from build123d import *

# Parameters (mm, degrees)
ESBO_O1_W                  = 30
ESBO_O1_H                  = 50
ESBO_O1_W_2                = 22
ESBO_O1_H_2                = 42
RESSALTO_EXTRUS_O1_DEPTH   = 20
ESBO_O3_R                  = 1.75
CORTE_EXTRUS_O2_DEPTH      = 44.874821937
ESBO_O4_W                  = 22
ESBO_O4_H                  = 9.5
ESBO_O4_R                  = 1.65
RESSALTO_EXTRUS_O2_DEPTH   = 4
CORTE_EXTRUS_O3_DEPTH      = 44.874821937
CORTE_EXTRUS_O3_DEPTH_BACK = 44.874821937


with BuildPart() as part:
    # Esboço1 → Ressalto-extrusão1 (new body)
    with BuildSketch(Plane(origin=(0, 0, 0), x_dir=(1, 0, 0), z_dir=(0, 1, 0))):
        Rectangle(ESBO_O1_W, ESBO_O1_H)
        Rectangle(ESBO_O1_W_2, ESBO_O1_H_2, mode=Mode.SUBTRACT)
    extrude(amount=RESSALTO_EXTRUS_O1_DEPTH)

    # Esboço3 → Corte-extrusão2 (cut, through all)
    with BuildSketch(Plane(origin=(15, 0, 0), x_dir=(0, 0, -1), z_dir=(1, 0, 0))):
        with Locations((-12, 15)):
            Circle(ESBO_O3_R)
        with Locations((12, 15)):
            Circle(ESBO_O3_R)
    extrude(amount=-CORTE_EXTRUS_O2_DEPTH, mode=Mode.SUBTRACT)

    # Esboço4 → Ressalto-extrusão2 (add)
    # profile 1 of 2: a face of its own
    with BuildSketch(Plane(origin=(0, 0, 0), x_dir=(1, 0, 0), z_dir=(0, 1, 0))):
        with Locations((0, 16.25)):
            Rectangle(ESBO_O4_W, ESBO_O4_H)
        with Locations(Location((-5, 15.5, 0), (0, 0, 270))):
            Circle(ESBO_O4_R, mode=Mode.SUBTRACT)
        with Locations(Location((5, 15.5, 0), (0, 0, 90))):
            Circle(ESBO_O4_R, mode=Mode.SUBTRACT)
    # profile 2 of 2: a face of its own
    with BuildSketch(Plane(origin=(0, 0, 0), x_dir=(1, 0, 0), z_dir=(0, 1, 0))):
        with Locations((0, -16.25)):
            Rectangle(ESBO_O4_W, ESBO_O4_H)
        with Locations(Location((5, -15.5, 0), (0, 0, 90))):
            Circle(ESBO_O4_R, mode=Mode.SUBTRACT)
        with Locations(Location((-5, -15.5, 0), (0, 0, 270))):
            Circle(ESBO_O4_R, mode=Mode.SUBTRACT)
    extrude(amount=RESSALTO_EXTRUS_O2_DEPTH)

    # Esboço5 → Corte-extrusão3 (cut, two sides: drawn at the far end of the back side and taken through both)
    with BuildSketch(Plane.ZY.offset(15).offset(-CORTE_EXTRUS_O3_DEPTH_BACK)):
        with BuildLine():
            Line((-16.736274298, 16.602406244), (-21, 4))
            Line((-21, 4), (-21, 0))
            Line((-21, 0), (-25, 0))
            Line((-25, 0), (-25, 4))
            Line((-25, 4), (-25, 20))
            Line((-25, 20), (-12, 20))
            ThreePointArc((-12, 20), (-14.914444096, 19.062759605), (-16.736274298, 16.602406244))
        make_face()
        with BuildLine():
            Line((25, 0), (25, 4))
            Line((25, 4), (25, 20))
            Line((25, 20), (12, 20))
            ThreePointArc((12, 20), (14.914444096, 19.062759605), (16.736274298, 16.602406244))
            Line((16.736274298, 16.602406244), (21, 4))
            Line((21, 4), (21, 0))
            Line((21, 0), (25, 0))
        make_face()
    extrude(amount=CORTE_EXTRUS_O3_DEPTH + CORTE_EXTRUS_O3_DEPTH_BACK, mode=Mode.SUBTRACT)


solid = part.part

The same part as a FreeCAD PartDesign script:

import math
import FreeCAD as App
import Part
import Sketcher
from FreeCAD import Vector
Q = App.Units.Quantity

doc = App.newDocument("Part")
body = doc.addObject("PartDesign::Body", "Body")

# Sketch on XZ plane
sketch1 = doc.addObject("Sketcher::SketchObject", "Sketch")
body.addObject(sketch1)
sketch1.AttachmentSupport = (doc.XZ_Plane, [""])
sketch1.MapMode = "FlatFace"
sketch1.addGeometry([
    Part.LineSegment(Vector(-15, -25, 0), Vector(-15, 25, 0)),  # 0
    Part.LineSegment(Vector(-15, 25, 0), Vector(15, 25, 0)),  # 1
    Part.LineSegment(Vector(15, 25, 0), Vector(15, -25, 0)),  # 2
    Part.LineSegment(Vector(15, -25, 0), Vector(-15, -25, 0)),  # 3
    Part.LineSegment(Vector(11, 21, 0), Vector(-11, 21, 0)),  # 4
    Part.LineSegment(Vector(-11, 21, 0), Vector(-11, -21, 0)),  # 5
    Part.LineSegment(Vector(-11, -21, 0), Vector(11, -21, 0)),  # 6
    Part.LineSegment(Vector(11, -21, 0), Vector(11, 21, 0)),  # 7
], False)
sketch1.addConstraint([
    Sketcher.Constraint("Coincident", 0, 2, 1, 1),
    Sketcher.Constraint("Coincident", 1, 2, 2, 1),
    Sketcher.Constraint("Coincident", 2, 2, 3, 1),
    Sketcher.Constraint("Coincident", 3, 2, 0, 1),
    Sketcher.Constraint("Coincident", 4, 2, 5, 1),
    Sketcher.Constraint("Coincident", 5, 2, 6, 1),
    Sketcher.Constraint("Coincident", 6, 2, 7, 1),
    Sketcher.Constraint("Coincident", 7, 2, 4, 1),
    Sketcher.Constraint("Vertical", 0),
    Sketcher.Constraint("Horizontal", 1),
    Sketcher.Constraint("Vertical", 2),
    Sketcher.Constraint("Horizontal", 3),
    Sketcher.Constraint("Horizontal", 4),
    Sketcher.Constraint("Vertical", 5),
    Sketcher.Constraint("Horizontal", 6),
    Sketcher.Constraint("Vertical", 7),
    Sketcher.Constraint("Symmetric", 0, 2, 2, 2, -1, 1),
    Sketcher.Constraint("Symmetric", 4, 2, 6, 2, -1, 1),
    Sketcher.Constraint("DistanceX", 1, 1, 1, 2, Q("30 mm")),
    Sketcher.Constraint("DistanceX", 4, 2, 4, 1, Q("22 mm")),
    Sketcher.Constraint("DistanceY", 0, 1, 0, 2, Q("50 mm")),
    Sketcher.Constraint("DistanceY", 5, 2, 5, 1, Q("42 mm")),
])
pad1 = doc.addObject("PartDesign::Pad", "Pad")
body.addObject(pad1)
pad1.Profile = sketch1
pad1.Length = 20
pad1.Reversed = True

# Sketch on YZ plane
sketch2 = doc.addObject("Sketcher::SketchObject", "Sketch001")
body.addObject(sketch2)
sketch2.AttachmentSupport = (doc.YZ_Plane, [""])
sketch2.MapMode = "FlatFace"
sketch2.AttachmentOffset = App.Placement(Vector(0, 0, 15), App.Rotation())
sketch2.addGeometry([
    Part.Circle(Vector(15, 12, 0), Vector(0, 0, 1), 1.75),
    Part.Circle(Vector(15, -12, 0), Vector(0, 0, 1), 1.75),
], False)
sketch2.addConstraint([
    Sketcher.Constraint("Equal", 0, 1),
    Sketcher.Constraint("Symmetric", 0, 3, 1, 3, -1),
    Sketcher.Constraint("Diameter", 0, Q("3.5 mm")),
    Sketcher.Constraint("DistanceX", -1, 1, 0, 3, Q("15 mm")),
    Sketcher.Constraint("DistanceY", -1, 1, 0, 3, Q("12 mm")),
])
pocket1 = doc.addObject("PartDesign::Pocket", "Pocket")
body.addObject(pocket1)
pocket1.Profile = sketch2
pocket1.Type = "ThroughAll"

# Sketch on XZ plane
sketch3 = doc.addObject("Sketcher::SketchObject", "Sketch002")
body.addObject(sketch3)
sketch3.AttachmentSupport = (doc.XZ_Plane, [""])
sketch3.MapMode = "FlatFace"
sketch3.addGeometry([
    Part.LineSegment(Vector(-11, -21, 0), Vector(-11, -11.5, 0)),  # 0
    Part.LineSegment(Vector(-11, -11.5, 0), Vector(11, -11.5, 0)),  # 1
    Part.LineSegment(Vector(11, -11.5, 0), Vector(11, -21, 0)),  # 2
    Part.LineSegment(Vector(11, -21, 0), Vector(-11, -21, 0)),  # 3
    Part.Circle(Vector(-5, -15.5, 0), Vector(0, 0, 1), 1.65),  # 4
    Part.Circle(Vector(5, -15.5, 0), Vector(0, 0, 1), 1.65),  # 5
    Part.LineSegment(Vector(-11, 11.5, 0), Vector(-11, 21, 0)),  # 6
    Part.LineSegment(Vector(-11, 21, 0), Vector(11, 21, 0)),  # 7
    Part.LineSegment(Vector(11, 21, 0), Vector(11, 11.5, 0)),  # 8
    Part.LineSegment(Vector(11, 11.5, 0), Vector(-11, 11.5, 0)),  # 9
    Part.Circle(Vector(-5, 15.5, 0), Vector(0, 0, 1), 1.65),  # 10
    Part.Circle(Vector(5, 15.5, 0), Vector(0, 0, 1), 1.65),  # 11
], False)
sketch3.addConstraint([
    Sketcher.Constraint("Coincident", 0, 2, 1, 1),
    Sketcher.Constraint("Coincident", 1, 2, 2, 1),
    Sketcher.Constraint("Coincident", 2, 2, 3, 1),
    Sketcher.Constraint("Coincident", 3, 2, 0, 1),
    Sketcher.Constraint("Coincident", 6, 2, 7, 1),
    Sketcher.Constraint("Coincident", 7, 2, 8, 1),
    Sketcher.Constraint("Coincident", 8, 2, 9, 1),
    Sketcher.Constraint("Coincident", 9, 2, 6, 1),
    Sketcher.Constraint("Vertical", 0),
    Sketcher.Constraint("Horizontal", 1),
    Sketcher.Constraint("Vertical", 2),
    Sketcher.Constraint("Horizontal", 3),
    Sketcher.Constraint("Vertical", 6),
    Sketcher.Constraint("Horizontal", 7),
    Sketcher.Constraint("Vertical", 8),
    Sketcher.Constraint("Horizontal", 9),
    Sketcher.Constraint("Equal", 4, 5),
    Sketcher.Constraint("Equal", 5, 10),
    Sketcher.Constraint("Equal", 10, 11),
    Sketcher.Constraint("Symmetric", 5, 3, 10, 3, -1, 1),
    Sketcher.Constraint("Symmetric", 4, 3, 11, 3, -1, 1),
    Sketcher.Constraint("Symmetric", 2, 2, 6, 2, -1, 1),
    Sketcher.Constraint("Symmetric", 0, 2, 8, 2, -1, 1),
    Sketcher.Constraint("Symmetric", 4, 3, 5, 3, -2),
    Sketcher.Constraint("Vertical", 3, 2, 6, 2),
    Sketcher.Constraint("Diameter", 4, Q("3.3 mm")),
    Sketcher.Constraint("DistanceX", 1, 1, 1, 2, Q("22 mm")),
    Sketcher.Constraint("DistanceY", 0, 1, 0, 2, Q("9.5 mm")),
    Sketcher.Constraint("DistanceX", 4, 3, -1, 1, Q("5 mm")),
    Sketcher.Constraint("DistanceY", 2, 2, -1, 1, Q("21 mm")),
    Sketcher.Constraint("DistanceY", 4, 3, 10, 3, Q("31 mm")),
])
pad2 = doc.addObject("PartDesign::Pad", "Pad001")
body.addObject(pad2)
pad2.Profile = sketch3
pad2.Length = 4
pad2.Reversed = True

# Sketch on YZ plane
sketch4 = doc.addObject("Sketcher::SketchObject", "Sketch003")
body.addObject(sketch4)
sketch4.AttachmentSupport = (doc.YZ_Plane, [""])
sketch4.MapMode = "FlatFace"
sketch4.AttachmentOffset = App.Placement(Vector(0, 0, -15), App.Rotation())
sketch4.addGeometry([
    Part.LineSegment(Vector(4, -21, 0), Vector(16.602406, -16.736274, 0)),  # 0
    Part.ArcOfCircle(Part.Circle(Vector(15, -12, 0), Vector(0, 0, 1), 5), math.radians(-71.307969), math.radians(0)),  # 1
    Part.LineSegment(Vector(20, -12, 0), Vector(20, -25, 0)),  # 2
    Part.LineSegment(Vector(20, -25, 0), Vector(0, -25, 0)),  # 3
    Part.LineSegment(Vector(0, -25, 0), Vector(0, -21, 0)),  # 4
    Part.LineSegment(Vector(0, -21, 0), Vector(4, -21, 0)),  # 5
    Part.LineSegment(Vector(0, 25, 0), Vector(20, 25, 0)),  # 6
    Part.LineSegment(Vector(20, 25, 0), Vector(20, 12, 0)),  # 7
    Part.ArcOfCircle(Part.Circle(Vector(15, 12, 0), Vector(0, 0, 1), 5), math.radians(0), math.radians(71.307969)),  # 8
    Part.LineSegment(Vector(16.602406, 16.736274, 0), Vector(4, 21, 0)),  # 9
    Part.LineSegment(Vector(4, 21, 0), Vector(0, 21, 0)),  # 10
    Part.LineSegment(Vector(0, 21, 0), Vector(0, 25, 0)),  # 11
], False)
sketch4.addConstraint([
    Sketcher.Constraint("Tangent", 0, 2, 1, 1),
    Sketcher.Constraint("Tangent", 1, 2, 2, 1),
    Sketcher.Constraint("Coincident", 2, 2, 3, 1),
    Sketcher.Constraint("Coincident", 3, 2, 4, 1),
    Sketcher.Constraint("Coincident", 4, 2, 5, 1),
    Sketcher.Constraint("Coincident", 5, 2, 0, 1),
    Sketcher.Constraint("Coincident", 6, 2, 7, 1),
    Sketcher.Constraint("Tangent", 7, 2, 8, 1),
    Sketcher.Constraint("Tangent", 8, 2, 9, 1),
    Sketcher.Constraint("Coincident", 9, 2, 10, 1),
    Sketcher.Constraint("Coincident", 10, 2, 11, 1),
    Sketcher.Constraint("Coincident", 11, 2, 6, 1),
    Sketcher.Constraint("Vertical", 2),
    Sketcher.Constraint("Horizontal", 3),
    Sketcher.Constraint("Vertical", 4),
    Sketcher.Constraint("Horizontal", 5),
    Sketcher.Constraint("Horizontal", 6),
    Sketcher.Constraint("Vertical", 7),
    Sketcher.Constraint("Horizontal", 10),
    Sketcher.Constraint("Vertical", 11),
    Sketcher.Constraint("Equal", 1, 8),
    Sketcher.Constraint("Symmetric", 4, 2, 10, 2, -1, 1),
    Sketcher.Constraint("Symmetric", 1, 3, 8, 3, -1),
    Sketcher.Constraint("Symmetric", 3, 2, 11, 2, -1),
    Sketcher.Constraint("Vertical", 0, 2, 8, 2),
    Sketcher.Constraint("Equal", 10, 4),
    Sketcher.Constraint("Radius", 1, Q("5 mm")),
    Sketcher.Constraint("DistanceX", 3, 2, 3, 1, Q("20 mm")),
    Sketcher.Constraint("DistanceX", 5, 1, 5, 2, Q("4 mm")),
    Sketcher.Constraint("DistanceY", 2, 2, 2, 1, Q("13 mm")),
    Sketcher.Constraint("DistanceY", 1, 3, -1, 1, Q("12 mm")),
])
pocket2 = doc.addObject("PartDesign::Pocket", "Pocket001")
body.addObject(pocket2)
pocket2.Profile = sketch4
pocket2.Type = "ThroughAll"
pocket2.Midplane = True

doc.recompute()
